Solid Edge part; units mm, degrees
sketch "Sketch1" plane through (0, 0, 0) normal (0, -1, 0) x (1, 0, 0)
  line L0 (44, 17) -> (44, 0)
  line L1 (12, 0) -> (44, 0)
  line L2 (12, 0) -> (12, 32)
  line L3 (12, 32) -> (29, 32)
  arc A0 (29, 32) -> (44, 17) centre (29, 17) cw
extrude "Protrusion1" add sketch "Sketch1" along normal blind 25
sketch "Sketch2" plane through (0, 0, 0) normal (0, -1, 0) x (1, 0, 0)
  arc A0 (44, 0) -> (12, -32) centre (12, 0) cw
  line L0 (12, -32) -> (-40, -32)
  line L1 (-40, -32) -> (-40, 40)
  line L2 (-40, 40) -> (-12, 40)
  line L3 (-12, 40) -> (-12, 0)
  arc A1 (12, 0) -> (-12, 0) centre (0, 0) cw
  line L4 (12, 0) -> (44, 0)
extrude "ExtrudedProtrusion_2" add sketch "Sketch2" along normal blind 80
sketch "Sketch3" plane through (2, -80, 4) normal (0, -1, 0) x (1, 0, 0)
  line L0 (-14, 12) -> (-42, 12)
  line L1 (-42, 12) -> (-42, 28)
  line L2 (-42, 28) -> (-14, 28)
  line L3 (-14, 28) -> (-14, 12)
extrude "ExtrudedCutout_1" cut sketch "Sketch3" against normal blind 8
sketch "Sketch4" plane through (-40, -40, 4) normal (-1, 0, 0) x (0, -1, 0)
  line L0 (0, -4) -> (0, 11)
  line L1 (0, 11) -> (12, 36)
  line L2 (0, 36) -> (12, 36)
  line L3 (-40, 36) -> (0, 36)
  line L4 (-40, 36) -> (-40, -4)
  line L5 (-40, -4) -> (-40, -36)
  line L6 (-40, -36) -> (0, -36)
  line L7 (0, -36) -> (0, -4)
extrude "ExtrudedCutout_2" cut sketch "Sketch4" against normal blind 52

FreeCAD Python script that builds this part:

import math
import FreeCAD as App
import Part
import Sketcher
from FreeCAD import Vector
Q = App.Units.Quantity


def add_polygon(sketch, points):
    """Adds a closed chain of lines whose ends are joined by coincident constraints."""
    first, n = sketch.GeometryCount, len(points)
    for a, b in zip(points, points[1:] + points[:1]):
        sketch.addGeometry(Part.LineSegment(App.Vector(*a, 0), App.Vector(*b, 0)), False)
    for i in range(n):
        sketch.addConstraint(Sketcher.Constraint("Coincident", first + i, 2, first + (i + 1) % n, 1))

doc = App.newDocument("Part")
body = doc.addObject("PartDesign::Body", "Body")

sketch1 = body.newObject("Sketcher::SketchObject", "Sketch")
sketch1.AttachmentSupport = (doc.getObject("XZ_Plane"), [""])
sketch1.MapMode = "FlatFace"
sketch1.addGeometry([
    Part.LineSegment(Vector(44, 0, 0), Vector(44, 17, 0)),
    Part.ArcOfCircle(Part.Circle(Vector(29, 17, 0), Vector(0, 0, 1), 15), math.radians(0), math.radians(90)),
    Part.LineSegment(Vector(29, 32, 0), Vector(12, 32, 0)),
    Part.LineSegment(Vector(12, 32, 0), Vector(12, 0, 0)),
    Part.LineSegment(Vector(12, 0, 0), Vector(44, 0, 0)),
], False)
sketch1.addConstraint([
    Sketcher.Constraint("Tangent", 0, 2, 1, 1),
    Sketcher.Constraint("Tangent", 1, 2, 2, 1),
    Sketcher.Constraint("Coincident", 2, 2, 3, 1),
    Sketcher.Constraint("Coincident", 3, 2, 4, 1),
    Sketcher.Constraint("Coincident", 4, 2, 0, 1),
    Sketcher.Constraint("Vertical", 0),
    Sketcher.Constraint("Horizontal", 2),
    Sketcher.Constraint("Vertical", 3),
    Sketcher.Constraint("Horizontal", 4),
    Sketcher.Constraint("PointOnObject", 3, 2, -1),
    Sketcher.Constraint("Equal", 2, 0),
    Sketcher.Constraint("Radius", 1, Q("15 mm")),
    Sketcher.Constraint("DistanceX", 2, 2, 2, 1, Q("17 mm")),
    Sketcher.Constraint("DistanceX", -1, 1, 1, 3, Q("29 mm")),
])
pad1 = body.newObject("PartDesign::Pad", "Pad")
pad1.Profile = sketch1
pad1.Length = 25

sketch2 = body.newObject("Sketcher::SketchObject", "Sketch001")
sketch2.AttachmentSupport = (doc.getObject("XZ_Plane"), [""])
sketch2.MapMode = "FlatFace"
sketch2.addGeometry([
    Part.ArcOfCircle(Part.Circle(Vector(12, 0, 0), Vector(0, 0, 1), 32), math.radians(-90), math.radians(0)),
    Part.LineSegment(Vector(44, 0, 0), Vector(12, 0, 0)),
    Part.ArcOfCircle(Part.Circle(Vector(0, 0, 0), Vector(0, 0, 1), 12), math.radians(180), math.radians(360)),
    Part.LineSegment(Vector(-12, 0, 0), Vector(-12, 40, 0)),
    Part.LineSegment(Vector(-12, 40, 0), Vector(-40, 40, 0)),
    Part.LineSegment(Vector(-40, 40, 0), Vector(-40, -32, 0)),
    Part.LineSegment(Vector(-40, -32, 0), Vector(12, -32, 0)),
], False)
sketch2.addConstraint([
    Sketcher.Constraint("Coincident", 0, 2, 1, 1),
    Sketcher.Constraint("Coincident", 1, 2, 2, 2),
    Sketcher.Constraint("Tangent", 2, 1, 3, 1),
    Sketcher.Constraint("Coincident", 3, 2, 4, 1),
    Sketcher.Constraint("Coincident", 4, 2, 5, 1),
    Sketcher.Constraint("Coincident", 5, 2, 6, 1),
    Sketcher.Constraint("Tangent", 6, 2, 0, 1),
    Sketcher.Constraint("Horizontal", 1),
    Sketcher.Constraint("Vertical", 3),
    Sketcher.Constraint("Horizontal", 4),
    Sketcher.Constraint("Vertical", 5),
    Sketcher.Constraint("Horizontal", 6),
    Sketcher.Constraint("Coincident", 2, 3, -1, 1),
    Sketcher.Constraint("Coincident", 1, 2, 0, 3),
    Sketcher.Constraint("PointOnObject", 0, 3, -1),
    Sketcher.Constraint("Radius", 0, Q("32 mm")),
    Sketcher.Constraint("Radius", 2, Q("12 mm")),
    Sketcher.Constraint("DistanceX", 4, 2, 4, 1, Q("28 mm")),
    Sketcher.Constraint("DistanceY", 3, 1, 3, 2, Q("40 mm")),
])
pad2 = body.newObject("PartDesign::Pad", "Pad001")
pad2.Profile = sketch2
pad2.Length = 80

sketch3 = body.newObject("Sketcher::SketchObject", "Sketch002")
sketch3.AttachmentSupport = (doc.getObject("XZ_Plane"), [""])
sketch3.MapMode = "FlatFace"
sketch3.AttachmentOffset = App.Placement(Vector(0, 0, 80), App.Rotation())
add_polygon(sketch3, [(-40, 16), (-12, 16), (-12, 32), (-40, 32)])
sketch3.addConstraint([
    Sketcher.Constraint("Horizontal", 0),
    Sketcher.Constraint("Vertical", 1),
    Sketcher.Constraint("Horizontal", 2),
    Sketcher.Constraint("Vertical", 3),
    Sketcher.Constraint("DistanceX", 0, 1, 0, 2, Q("28 mm")),
    Sketcher.Constraint("DistanceY", 1, 1, 1, 2, Q("16 mm")),
    Sketcher.Constraint("DistanceX", 0, 2, -1, 1, Q("12 mm")),
    Sketcher.Constraint("DistanceY", -1, 1, 0, 2, Q("16 mm")),
])
pocket1 = body.newObject("PartDesign::Pocket", "Pocket")
pocket1.Profile = sketch3
pocket1.Length = 8

sketch4 = body.newObject("Sketcher::SketchObject", "Sketch003")
sketch4.AttachmentSupport = (doc.getObject("YZ_Plane"), [""])
sketch4.MapMode = "FlatFace"
sketch4.AttachmentOffset = App.Placement(Vector(0, 0, -40), App.Rotation())
add_polygon(sketch4, [(-40, -32), (-40, 15), (-52, 40), (0, 40), (0, -32)])
sketch4.addConstraint([
    Sketcher.Constraint("Vertical", 0),
    Sketcher.Constraint("Horizontal", 2),
    Sketcher.Constraint("Vertical", 3),
    Sketcher.Constraint("Horizontal", 4),
    Sketcher.Constraint("PointOnObject", 2, 2, -2),
    Sketcher.Constraint("DistanceX", 2, 1, 2, 2, Q("52 mm")),
    Sketcher.Constraint("DistanceX", 4, 2, 4, 1, Q("40 mm")),
    Sketcher.Constraint("DistanceY", 0, 1, 0, 2, Q("47 mm")),
    Sketcher.Constraint("DistanceY", 3, 2, 3, 1, Q("72 mm")),
    Sketcher.Constraint("DistanceY", -1, 1, 0, 2, Q("15 mm")),
])
pocket2 = body.newObject("PartDesign::Pocket", "Pocket001")
pocket2.Profile = sketch4
pocket2.Length = 52
pocket2.Reversed = True

doc.recompute()
